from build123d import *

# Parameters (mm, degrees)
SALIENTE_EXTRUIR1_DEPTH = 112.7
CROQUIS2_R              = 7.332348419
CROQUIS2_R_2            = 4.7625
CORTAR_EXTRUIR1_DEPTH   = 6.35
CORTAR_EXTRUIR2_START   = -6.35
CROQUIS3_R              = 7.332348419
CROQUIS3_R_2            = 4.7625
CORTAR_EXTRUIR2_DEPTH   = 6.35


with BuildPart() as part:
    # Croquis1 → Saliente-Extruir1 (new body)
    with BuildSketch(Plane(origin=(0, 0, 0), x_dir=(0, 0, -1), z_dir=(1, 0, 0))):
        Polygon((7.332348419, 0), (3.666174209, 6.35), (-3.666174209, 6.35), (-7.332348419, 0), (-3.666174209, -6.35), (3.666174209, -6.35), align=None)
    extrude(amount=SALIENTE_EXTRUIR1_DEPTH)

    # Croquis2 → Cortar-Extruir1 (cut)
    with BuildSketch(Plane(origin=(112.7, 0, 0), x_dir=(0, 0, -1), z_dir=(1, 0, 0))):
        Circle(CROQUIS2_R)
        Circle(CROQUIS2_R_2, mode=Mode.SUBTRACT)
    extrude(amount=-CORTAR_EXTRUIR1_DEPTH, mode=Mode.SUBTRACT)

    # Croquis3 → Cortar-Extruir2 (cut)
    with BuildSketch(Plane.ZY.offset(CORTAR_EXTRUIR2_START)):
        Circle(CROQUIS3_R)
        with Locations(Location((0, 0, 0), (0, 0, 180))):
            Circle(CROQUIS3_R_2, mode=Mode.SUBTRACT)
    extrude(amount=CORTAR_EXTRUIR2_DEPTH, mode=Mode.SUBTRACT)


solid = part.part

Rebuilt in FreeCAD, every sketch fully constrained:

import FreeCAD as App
import Part
import Sketcher

V = App.Vector
Q = App.Units.Quantity

doc = App.newDocument("Part")
body = doc.addObject("PartDesign::Body", "Body")

sketch1 = body.newObject("Sketcher::SketchObject", "Sketch")
sketch1.AttachmentSupport = (doc.getObject("YZ_Plane"), [""])
sketch1.MapMode = "FlatFace"
sketch1.addGeometry(Part.LineSegment(V(0, -7, 0), V(6, -4, 0)), False)
sketch1.addGeometry(Part.LineSegment(V(6, -4, 0), V(6, 4, 0)), False)
sketch1.addGeometry(Part.LineSegment(V(6, 4, 0), V(0, 7, 0)), False)
sketch1.addGeometry(Part.LineSegment(V(0, 7, 0), V(-6, 4, 0)), False)
sketch1.addGeometry(Part.LineSegment(V(-6, 4, 0), V(-6, -4, 0)), False)
sketch1.addGeometry(Part.LineSegment(V(-6, -4, 0), V(0, -7, 0)), False)
sketch1.addConstraint(Sketcher.Constraint("Coincident", 0, 2, 1, 1))
sketch1.addConstraint(Sketcher.Constraint("Coincident", 1, 2, 2, 1))
sketch1.addConstraint(Sketcher.Constraint("Coincident", 2, 2, 3, 1))
sketch1.addConstraint(Sketcher.Constraint("Coincident", 3, 2, 4, 1))
sketch1.addConstraint(Sketcher.Constraint("Coincident", 4, 2, 5, 1))
sketch1.addConstraint(Sketcher.Constraint("Coincident", 5, 2, 0, 1))
sketch1.addConstraint(Sketcher.Constraint("Vertical", 1))
sketch1.addConstraint(Sketcher.Constraint("Vertical", 4))
sketch1.addConstraint(Sketcher.Constraint("Symmetric", 0, 2, 3, 2, -1, 1))
sketch1.addConstraint(Sketcher.Constraint("Symmetric", 2, 2, 5, 2, -1, 1))
sketch1.addConstraint(Sketcher.Constraint("PointOnObject", 2, 2, -2))
sketch1.addConstraint(Sketcher.Constraint("Parallel", 2, 5))
sketch1.addConstraint(Sketcher.Constraint("Horizontal", 1, 2, 3, 2))
sketch1.addConstraint(Sketcher.Constraint("Angle", 0, Q("30 deg")))
sketch1.addConstraint(Sketcher.Constraint("DistanceX", 3, 2, 1, 2, Q("0.5 in")))
sketch1.addConstraint(Sketcher.Constraint("DistanceY", 1, 1, 1, 2, 7.332348))
pad1 = body.newObject("PartDesign::Pad", "Pad")
pad1.Profile = sketch1
pad1.Length = 112.7

sketch2 = body.newObject("Sketcher::SketchObject", "Sketch001")
sketch2.AttachmentSupport = (doc.getObject("YZ_Plane"), [""])
sketch2.MapMode = "FlatFace"
sketch2.AttachmentOffset = App.Placement(V(0, 0, 112.7), App.Rotation())
sketch2.addGeometry(Part.Circle(V(0, 0, 0), V(0, 0, 1), 7.3), False)
sketch2.addGeometry(Part.Circle(V(0, 0, 0), V(0, 0, 1), 4.8), False)
sketch2.addConstraint(Sketcher.Constraint("Coincident", 0, 3, -1, 1))
sketch2.addConstraint(Sketcher.Constraint("Coincident", 1, 3, -1, 1))
sketch2.addConstraint(Sketcher.Constraint("Diameter", 1, Q("0.375 in")))
sketch2.addConstraint(Sketcher.Constraint("Diameter", 0, 14.664697))
pocket1 = body.newObject("PartDesign::Pocket", "Pocket")
pocket1.Profile = sketch2
pocket1.Length = Q("0.25 in")

sketch3 = body.newObject("Sketcher::SketchObject", "Sketch002")
sketch3.AttachmentSupport = (doc.getObject("YZ_Plane"), [""])
sketch3.MapMode = "FlatFace"
sketch3.AttachmentOffset = App.Placement(V(0, 0, 0.25 * 25.4), App.Rotation())
sketch3.addGeometry(Part.Circle(V(0, 0, 0), V(0, 0, 1), 7.3), False)
sketch3.addGeometry(Part.Circle(V(0, 0, 0), V(0, 0, 1), 4.8), False)
sketch3.addConstraint(Sketcher.Constraint("Coincident", 0, 3, -1, 1))
sketch3.addConstraint(Sketcher.Constraint("Coincident", 1, 3, -1, 1))
sketch3.addConstraint(Sketcher.Constraint("Diameter", 1, Q("0.375 in")))
sketch3.addConstraint(Sketcher.Constraint("Diameter", 0, 14.664697))
pocket2 = body.newObject("PartDesign::Pocket", "Pocket001")
pocket2.Profile = sketch3
pocket2.Length = Q("0.25 in")

doc.recompute()
